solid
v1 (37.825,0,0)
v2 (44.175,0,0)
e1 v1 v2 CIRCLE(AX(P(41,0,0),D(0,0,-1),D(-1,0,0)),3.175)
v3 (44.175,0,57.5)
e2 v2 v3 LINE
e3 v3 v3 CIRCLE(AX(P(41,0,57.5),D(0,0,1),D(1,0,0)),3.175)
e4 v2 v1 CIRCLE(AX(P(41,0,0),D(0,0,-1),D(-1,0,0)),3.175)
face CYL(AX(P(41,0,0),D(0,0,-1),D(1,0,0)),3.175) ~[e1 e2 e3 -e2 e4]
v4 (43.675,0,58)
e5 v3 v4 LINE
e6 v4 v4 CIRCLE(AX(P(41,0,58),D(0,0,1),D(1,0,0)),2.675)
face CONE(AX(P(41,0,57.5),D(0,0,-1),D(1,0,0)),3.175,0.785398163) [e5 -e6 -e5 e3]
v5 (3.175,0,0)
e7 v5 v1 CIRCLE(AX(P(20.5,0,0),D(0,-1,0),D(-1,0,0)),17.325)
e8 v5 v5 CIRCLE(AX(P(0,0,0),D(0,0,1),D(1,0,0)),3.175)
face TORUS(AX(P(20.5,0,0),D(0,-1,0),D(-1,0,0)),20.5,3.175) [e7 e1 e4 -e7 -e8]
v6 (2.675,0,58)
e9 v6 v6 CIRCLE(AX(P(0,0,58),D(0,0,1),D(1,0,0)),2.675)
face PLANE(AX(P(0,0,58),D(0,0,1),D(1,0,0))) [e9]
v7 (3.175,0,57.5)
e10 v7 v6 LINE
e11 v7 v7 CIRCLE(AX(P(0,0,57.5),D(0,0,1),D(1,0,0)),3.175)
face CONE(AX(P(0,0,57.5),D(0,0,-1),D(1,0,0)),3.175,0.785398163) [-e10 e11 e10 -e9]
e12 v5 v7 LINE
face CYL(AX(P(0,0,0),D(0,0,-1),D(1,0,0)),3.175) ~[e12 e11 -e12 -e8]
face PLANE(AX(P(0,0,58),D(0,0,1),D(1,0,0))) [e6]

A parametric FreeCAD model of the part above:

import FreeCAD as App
import Part
import Sketcher

V = App.Vector


def edges_at(feature, points):
    """Names of the edges that pass closest to the given points."""
    edges = feature.Shape.Edges
    near = lambda p: min(range(len(edges)), key=lambda i: edges[i].distToShape(Part.Vertex(*p))[0])
    return sorted({f"Edge{near(p) + 1}" for p in points})

doc = App.newDocument("Part")
body = doc.addObject("PartDesign::Body", "Body")

sketch1 = body.newObject("Sketcher::SketchObject", "Sketch")
sketch1.AttachmentSupport = (doc.getObject("XY_Plane"), [""])
sketch1.MapMode = "FlatFace"
sketch1.addGeometry(Part.Circle(V(0, 0, 0), V(0, 0, 1), 3.2), False)
sketch1.addGeometry(Part.LineSegment(V(20.5, 0, 0), V(20.5, -10, 0)), True)
sketch1.addConstraint(Sketcher.Constraint("Vertical", 1))
sketch1.addConstraint(Sketcher.Constraint("Coincident", 0, 3, -1, 1))
sketch1.addConstraint(Sketcher.Constraint("PointOnObject", 1, 1, -1))
sketch1.addConstraint(Sketcher.Constraint("Diameter", 0, 6.35))
sketch1.addConstraint(Sketcher.Constraint("DistanceY", 1, 2, 1, 1, 10.0))
sketch1.addConstraint(Sketcher.Constraint("DistanceX", -1, 1, 1, 1, 20.5))
revolution = body.newObject("PartDesign::Revolution", "Revolution")
revolution.Profile = sketch1
revolution.ReferenceAxis = (sketch1, ["Axis0"])
revolution.Angle = 180

sketch2 = body.newObject("Sketcher::SketchObject", "Sketch001")
sketch2.AttachmentSupport = (doc.getObject("XY_Plane"), [""])
sketch2.MapMode = "FlatFace"
sketch2.addGeometry(Part.Circle(V(0, 0, 0), V(0, 0, 1), 3.2), False)
sketch2.addGeometry(Part.Circle(V(41, 0, 0), V(0, 0, 1), 3.2), False)
sketch2.addConstraint(Sketcher.Constraint("Coincident", 0, 3, -1, 1))
sketch2.addConstraint(Sketcher.Constraint("Equal", 0, 1))
sketch2.addConstraint(Sketcher.Constraint("PointOnObject", 1, 3, -1))
sketch2.addConstraint(Sketcher.Constraint("Diameter", 0, 6.35))
sketch2.addConstraint(Sketcher.Constraint("DistanceX", -1, 1, 1, 3, 41.0))
pad1 = body.newObject("PartDesign::Pad", "Pad")
pad1.Profile = sketch2
pad1.Length = 58
doc.recompute()

chamfer = body.newObject("PartDesign::Chamfer", "Chamfer")
chamfer.Base = (pad1, edges_at(pad1, [(-3.175, 0, 58), (37.825, 0, 58)]))
chamfer.Size = 0.5

doc.recompute()
